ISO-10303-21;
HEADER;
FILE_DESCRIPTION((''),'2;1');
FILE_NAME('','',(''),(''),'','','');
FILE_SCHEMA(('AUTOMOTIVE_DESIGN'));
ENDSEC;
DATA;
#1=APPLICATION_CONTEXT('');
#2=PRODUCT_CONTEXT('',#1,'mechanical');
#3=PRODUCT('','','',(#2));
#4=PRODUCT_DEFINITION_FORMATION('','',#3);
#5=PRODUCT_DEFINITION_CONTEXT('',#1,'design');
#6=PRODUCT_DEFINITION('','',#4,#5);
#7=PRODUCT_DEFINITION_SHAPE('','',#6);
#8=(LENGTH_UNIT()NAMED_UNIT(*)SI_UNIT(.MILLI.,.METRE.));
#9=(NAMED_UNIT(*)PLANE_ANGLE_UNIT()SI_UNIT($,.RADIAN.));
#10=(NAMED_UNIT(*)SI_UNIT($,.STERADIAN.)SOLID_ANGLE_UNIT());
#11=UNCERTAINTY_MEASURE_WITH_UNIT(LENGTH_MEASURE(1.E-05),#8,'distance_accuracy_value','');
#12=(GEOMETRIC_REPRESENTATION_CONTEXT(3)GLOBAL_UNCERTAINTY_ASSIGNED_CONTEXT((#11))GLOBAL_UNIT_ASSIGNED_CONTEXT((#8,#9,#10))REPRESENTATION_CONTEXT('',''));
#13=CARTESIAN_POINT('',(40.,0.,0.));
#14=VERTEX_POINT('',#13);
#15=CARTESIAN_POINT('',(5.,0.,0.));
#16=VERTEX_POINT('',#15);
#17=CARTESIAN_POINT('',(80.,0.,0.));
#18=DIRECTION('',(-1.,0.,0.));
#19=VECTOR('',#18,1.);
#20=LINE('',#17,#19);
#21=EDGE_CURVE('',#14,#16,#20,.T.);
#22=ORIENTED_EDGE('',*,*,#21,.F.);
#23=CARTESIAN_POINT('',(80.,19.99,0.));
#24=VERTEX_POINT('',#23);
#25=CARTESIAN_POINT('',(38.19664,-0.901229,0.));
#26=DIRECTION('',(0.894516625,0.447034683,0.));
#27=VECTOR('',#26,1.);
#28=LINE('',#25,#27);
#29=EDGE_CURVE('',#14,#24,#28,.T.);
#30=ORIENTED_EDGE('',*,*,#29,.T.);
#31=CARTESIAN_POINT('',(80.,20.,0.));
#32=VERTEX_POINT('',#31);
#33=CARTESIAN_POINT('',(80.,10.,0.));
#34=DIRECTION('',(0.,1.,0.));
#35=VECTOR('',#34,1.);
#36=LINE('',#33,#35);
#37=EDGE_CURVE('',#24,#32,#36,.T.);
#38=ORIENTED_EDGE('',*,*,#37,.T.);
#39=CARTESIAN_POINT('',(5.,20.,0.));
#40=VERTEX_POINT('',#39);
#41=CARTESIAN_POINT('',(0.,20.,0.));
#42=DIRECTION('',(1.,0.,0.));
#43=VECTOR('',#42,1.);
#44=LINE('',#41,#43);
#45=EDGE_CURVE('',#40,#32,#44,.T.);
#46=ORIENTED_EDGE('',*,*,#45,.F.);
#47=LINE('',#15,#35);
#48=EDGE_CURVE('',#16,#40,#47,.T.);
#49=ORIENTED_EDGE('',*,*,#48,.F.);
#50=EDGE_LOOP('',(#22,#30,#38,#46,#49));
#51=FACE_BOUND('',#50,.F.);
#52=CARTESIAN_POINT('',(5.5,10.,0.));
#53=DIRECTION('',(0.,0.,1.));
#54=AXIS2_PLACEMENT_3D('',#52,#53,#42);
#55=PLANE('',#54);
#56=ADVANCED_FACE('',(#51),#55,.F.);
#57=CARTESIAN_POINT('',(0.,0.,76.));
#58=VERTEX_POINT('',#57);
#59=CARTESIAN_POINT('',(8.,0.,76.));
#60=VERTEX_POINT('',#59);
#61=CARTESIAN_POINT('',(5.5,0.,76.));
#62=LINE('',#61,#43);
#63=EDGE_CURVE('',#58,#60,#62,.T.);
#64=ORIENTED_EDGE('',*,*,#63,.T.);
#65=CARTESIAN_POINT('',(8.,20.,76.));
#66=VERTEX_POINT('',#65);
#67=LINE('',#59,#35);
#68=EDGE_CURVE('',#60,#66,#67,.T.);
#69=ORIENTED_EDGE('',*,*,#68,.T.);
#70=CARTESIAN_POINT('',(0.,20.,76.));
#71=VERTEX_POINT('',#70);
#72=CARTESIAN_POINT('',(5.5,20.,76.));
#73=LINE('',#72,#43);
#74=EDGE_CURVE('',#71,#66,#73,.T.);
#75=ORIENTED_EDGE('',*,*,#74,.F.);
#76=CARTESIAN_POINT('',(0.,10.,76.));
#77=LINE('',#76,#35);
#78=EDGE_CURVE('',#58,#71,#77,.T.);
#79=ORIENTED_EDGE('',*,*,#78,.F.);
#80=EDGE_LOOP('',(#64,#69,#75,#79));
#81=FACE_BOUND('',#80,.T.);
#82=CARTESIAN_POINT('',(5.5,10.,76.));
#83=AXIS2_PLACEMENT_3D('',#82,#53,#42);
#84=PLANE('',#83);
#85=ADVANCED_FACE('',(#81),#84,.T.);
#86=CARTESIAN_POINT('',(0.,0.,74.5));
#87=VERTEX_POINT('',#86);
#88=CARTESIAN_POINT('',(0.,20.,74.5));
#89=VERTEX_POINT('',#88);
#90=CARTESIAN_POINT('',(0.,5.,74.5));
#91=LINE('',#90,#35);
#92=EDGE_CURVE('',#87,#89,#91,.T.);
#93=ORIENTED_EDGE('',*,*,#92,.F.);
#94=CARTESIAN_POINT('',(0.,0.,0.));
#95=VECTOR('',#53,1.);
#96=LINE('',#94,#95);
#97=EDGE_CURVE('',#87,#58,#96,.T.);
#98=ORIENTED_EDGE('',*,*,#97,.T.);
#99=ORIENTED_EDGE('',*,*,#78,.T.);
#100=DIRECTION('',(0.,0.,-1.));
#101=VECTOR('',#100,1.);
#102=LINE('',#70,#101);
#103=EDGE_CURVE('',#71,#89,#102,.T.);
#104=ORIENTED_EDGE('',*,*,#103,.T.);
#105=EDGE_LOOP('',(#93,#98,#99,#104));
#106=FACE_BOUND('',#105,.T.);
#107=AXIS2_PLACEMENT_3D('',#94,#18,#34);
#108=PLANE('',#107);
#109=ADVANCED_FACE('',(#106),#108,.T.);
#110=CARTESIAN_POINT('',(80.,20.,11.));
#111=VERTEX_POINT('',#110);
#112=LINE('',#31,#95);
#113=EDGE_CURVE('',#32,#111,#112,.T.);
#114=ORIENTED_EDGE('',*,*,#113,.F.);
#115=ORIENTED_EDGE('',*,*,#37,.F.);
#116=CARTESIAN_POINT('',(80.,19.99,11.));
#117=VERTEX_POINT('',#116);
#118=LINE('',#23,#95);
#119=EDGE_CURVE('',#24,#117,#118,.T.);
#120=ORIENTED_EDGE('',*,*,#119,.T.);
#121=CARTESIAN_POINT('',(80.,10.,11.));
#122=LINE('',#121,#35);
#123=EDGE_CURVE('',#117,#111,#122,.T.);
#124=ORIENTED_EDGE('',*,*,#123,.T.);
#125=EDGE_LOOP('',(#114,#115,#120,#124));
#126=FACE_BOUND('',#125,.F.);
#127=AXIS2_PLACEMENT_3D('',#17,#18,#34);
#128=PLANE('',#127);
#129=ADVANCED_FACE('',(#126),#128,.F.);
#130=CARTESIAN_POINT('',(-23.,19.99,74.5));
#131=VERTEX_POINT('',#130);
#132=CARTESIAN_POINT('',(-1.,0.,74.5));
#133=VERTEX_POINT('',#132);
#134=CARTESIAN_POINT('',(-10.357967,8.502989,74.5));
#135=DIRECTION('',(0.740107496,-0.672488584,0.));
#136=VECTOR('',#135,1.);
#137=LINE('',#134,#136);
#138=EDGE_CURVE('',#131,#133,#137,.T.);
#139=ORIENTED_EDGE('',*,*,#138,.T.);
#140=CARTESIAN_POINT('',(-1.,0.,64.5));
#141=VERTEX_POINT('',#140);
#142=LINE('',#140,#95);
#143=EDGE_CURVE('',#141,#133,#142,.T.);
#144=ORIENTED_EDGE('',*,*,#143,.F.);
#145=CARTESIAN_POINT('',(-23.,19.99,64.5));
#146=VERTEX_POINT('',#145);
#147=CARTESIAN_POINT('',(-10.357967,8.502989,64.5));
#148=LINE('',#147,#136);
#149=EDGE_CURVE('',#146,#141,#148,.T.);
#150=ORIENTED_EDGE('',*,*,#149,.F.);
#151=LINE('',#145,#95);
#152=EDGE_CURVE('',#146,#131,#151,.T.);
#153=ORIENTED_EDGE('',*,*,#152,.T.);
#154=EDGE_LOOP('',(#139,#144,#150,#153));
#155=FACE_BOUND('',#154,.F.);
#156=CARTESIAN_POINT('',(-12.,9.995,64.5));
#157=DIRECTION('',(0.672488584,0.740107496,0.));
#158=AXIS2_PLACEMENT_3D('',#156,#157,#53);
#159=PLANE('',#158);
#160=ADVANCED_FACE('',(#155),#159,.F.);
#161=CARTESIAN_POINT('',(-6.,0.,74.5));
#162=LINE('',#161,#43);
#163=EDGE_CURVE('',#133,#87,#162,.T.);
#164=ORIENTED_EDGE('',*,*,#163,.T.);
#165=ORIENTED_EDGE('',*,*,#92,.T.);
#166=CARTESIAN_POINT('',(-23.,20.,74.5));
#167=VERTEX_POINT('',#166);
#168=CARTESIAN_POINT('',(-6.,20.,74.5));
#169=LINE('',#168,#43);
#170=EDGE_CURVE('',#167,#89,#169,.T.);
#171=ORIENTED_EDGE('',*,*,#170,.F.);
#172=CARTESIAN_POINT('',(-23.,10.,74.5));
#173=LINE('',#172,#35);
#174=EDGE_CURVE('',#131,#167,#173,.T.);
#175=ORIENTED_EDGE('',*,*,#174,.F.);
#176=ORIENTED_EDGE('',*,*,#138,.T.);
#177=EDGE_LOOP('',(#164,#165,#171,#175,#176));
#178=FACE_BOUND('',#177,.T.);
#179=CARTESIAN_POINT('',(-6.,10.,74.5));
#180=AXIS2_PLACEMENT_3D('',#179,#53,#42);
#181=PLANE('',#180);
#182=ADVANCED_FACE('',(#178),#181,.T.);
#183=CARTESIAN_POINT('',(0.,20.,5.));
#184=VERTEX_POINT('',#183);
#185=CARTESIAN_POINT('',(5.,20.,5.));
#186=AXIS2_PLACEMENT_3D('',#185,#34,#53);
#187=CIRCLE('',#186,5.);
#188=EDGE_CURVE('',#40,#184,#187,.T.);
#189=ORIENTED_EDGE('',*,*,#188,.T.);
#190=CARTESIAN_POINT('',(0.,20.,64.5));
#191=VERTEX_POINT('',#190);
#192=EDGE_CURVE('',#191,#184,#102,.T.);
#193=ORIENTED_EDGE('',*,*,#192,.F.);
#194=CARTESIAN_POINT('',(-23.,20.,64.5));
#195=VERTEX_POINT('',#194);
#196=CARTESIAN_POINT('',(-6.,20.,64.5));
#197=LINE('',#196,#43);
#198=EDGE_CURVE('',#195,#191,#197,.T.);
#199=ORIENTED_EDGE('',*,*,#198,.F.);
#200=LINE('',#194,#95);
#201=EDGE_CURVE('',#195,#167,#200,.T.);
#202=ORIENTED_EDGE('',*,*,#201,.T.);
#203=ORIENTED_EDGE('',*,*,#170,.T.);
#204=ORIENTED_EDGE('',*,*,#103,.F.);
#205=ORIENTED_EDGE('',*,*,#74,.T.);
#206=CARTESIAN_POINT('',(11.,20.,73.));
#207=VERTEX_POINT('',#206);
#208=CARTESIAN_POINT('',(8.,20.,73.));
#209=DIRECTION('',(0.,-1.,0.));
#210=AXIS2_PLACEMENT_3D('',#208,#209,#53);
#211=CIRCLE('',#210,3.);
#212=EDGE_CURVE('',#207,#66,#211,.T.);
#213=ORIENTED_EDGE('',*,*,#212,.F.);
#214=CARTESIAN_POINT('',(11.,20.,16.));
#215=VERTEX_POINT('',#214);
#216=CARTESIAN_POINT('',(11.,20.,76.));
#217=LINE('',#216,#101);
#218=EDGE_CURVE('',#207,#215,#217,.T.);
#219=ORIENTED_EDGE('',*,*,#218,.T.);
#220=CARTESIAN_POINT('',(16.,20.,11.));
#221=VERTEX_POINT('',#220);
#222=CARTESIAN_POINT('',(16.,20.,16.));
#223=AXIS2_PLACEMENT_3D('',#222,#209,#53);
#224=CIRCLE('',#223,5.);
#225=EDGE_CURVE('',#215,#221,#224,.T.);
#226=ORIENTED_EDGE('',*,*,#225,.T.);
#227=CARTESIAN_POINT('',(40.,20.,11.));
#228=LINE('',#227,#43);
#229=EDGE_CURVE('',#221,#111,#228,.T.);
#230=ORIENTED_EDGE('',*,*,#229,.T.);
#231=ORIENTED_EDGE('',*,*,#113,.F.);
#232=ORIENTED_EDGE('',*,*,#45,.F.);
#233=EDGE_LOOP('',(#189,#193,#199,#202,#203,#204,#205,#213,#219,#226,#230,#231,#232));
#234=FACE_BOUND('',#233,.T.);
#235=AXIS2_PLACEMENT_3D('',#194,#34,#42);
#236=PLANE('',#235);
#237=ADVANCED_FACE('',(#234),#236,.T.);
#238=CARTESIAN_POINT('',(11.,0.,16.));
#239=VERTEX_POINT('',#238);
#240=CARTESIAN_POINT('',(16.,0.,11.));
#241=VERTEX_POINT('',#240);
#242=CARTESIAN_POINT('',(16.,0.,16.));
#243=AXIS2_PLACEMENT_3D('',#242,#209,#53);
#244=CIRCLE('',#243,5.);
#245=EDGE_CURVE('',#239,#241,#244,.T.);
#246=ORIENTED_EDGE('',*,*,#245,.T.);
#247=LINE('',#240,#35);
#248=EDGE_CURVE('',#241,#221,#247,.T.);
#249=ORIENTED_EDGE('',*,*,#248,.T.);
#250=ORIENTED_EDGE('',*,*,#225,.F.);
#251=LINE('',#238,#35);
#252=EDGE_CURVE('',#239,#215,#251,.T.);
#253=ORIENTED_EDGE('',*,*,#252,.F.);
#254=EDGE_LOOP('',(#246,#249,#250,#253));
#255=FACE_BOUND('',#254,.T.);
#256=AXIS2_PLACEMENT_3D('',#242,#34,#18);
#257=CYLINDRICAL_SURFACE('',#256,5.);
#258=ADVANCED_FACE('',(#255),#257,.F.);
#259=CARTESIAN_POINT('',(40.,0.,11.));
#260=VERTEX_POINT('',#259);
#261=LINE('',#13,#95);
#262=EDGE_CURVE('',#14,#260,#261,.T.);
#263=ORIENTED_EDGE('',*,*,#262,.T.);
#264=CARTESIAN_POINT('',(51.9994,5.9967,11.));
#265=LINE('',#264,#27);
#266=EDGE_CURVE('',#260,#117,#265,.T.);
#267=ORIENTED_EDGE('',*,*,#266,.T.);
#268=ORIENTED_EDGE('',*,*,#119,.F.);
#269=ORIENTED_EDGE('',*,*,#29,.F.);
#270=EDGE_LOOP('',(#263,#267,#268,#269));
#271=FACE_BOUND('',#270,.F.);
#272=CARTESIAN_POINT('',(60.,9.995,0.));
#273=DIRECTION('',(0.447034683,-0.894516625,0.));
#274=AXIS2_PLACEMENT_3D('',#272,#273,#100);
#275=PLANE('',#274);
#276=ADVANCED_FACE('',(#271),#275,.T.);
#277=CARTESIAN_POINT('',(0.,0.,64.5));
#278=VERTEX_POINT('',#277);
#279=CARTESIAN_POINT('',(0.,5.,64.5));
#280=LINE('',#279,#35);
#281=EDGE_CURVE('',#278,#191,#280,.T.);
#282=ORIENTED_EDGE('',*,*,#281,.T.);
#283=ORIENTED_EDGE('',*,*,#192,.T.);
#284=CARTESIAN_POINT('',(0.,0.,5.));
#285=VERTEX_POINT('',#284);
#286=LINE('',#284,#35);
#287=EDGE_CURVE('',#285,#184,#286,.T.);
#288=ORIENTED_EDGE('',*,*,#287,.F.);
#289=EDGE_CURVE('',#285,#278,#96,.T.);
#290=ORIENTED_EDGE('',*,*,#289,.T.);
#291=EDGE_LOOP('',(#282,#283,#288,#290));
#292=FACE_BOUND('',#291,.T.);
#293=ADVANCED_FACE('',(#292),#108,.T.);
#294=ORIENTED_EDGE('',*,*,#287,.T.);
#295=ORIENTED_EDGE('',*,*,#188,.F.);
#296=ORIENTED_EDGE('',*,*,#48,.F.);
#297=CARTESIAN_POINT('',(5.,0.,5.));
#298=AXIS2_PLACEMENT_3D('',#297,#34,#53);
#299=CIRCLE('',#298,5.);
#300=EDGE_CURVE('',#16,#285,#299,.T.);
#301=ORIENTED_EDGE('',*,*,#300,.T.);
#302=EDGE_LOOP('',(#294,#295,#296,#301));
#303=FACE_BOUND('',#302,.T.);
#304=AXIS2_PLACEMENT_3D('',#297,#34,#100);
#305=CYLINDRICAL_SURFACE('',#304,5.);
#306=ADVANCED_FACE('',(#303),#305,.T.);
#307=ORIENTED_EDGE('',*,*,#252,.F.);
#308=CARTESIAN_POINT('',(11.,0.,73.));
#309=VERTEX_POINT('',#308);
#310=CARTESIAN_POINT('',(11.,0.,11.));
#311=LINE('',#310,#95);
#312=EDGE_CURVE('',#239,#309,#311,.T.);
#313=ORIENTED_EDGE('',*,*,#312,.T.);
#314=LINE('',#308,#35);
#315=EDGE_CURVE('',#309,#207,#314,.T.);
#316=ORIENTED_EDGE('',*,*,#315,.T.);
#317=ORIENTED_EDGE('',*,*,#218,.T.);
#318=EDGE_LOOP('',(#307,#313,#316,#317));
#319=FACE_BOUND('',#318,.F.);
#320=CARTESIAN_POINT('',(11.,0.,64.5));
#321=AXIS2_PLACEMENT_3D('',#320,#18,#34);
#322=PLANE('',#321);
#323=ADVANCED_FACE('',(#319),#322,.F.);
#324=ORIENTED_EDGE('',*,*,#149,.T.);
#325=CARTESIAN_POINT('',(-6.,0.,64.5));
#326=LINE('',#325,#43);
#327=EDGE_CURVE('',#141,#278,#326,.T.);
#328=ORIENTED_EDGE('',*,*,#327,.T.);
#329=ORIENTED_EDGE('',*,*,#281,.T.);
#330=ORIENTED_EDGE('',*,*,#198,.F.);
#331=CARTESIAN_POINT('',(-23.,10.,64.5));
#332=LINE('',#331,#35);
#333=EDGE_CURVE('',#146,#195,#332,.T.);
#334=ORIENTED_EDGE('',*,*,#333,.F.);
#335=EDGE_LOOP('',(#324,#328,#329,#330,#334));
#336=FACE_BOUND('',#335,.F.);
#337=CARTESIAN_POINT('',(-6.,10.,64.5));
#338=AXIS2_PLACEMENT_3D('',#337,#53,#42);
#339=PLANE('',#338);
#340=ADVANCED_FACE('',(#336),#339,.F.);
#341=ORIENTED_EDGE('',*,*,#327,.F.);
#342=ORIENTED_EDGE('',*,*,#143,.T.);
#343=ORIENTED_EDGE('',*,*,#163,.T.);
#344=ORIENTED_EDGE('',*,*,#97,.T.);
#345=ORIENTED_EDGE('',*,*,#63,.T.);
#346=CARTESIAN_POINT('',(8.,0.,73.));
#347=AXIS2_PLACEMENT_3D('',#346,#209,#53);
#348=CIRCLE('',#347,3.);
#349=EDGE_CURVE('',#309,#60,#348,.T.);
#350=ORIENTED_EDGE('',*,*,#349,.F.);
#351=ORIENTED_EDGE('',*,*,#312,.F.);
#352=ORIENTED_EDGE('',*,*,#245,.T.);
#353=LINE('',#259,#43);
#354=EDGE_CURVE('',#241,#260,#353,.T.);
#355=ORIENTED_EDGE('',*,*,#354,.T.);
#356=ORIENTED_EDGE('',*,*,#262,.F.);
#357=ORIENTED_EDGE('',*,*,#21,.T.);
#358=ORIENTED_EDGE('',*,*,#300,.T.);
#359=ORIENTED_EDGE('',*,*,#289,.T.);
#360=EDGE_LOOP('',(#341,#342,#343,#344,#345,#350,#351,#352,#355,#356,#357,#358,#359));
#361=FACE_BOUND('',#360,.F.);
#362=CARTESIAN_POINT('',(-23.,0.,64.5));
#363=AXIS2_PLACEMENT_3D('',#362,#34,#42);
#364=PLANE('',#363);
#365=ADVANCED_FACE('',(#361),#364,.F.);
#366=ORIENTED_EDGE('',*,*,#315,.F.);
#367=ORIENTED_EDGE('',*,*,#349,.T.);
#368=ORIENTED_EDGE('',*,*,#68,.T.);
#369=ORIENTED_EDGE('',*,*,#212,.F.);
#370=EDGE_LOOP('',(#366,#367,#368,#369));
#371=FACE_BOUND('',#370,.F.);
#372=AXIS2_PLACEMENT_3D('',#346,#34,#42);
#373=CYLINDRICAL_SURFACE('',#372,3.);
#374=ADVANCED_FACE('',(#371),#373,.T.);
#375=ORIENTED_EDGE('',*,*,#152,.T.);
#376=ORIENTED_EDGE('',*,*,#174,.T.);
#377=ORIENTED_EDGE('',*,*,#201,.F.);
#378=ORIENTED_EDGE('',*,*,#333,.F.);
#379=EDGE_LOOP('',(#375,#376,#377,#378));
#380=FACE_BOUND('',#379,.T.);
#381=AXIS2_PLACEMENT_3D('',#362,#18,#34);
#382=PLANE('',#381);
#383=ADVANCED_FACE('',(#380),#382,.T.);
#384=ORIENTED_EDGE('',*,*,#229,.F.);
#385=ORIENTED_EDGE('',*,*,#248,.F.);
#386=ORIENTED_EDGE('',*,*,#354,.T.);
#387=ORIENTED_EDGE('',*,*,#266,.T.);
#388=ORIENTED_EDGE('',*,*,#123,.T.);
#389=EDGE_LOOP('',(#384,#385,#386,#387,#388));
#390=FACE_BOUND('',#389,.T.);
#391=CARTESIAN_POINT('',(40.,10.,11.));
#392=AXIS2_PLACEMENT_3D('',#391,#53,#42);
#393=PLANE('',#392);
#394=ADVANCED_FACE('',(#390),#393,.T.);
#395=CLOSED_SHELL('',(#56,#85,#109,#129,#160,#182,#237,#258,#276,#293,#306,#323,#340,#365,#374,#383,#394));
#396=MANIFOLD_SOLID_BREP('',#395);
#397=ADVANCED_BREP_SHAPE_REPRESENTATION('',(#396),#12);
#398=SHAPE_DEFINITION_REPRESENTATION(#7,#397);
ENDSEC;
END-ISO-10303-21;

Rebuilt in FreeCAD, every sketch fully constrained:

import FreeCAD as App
import Part
import Sketcher
Q = App.Units.Quantity


def edges_at(feature, points):
    """Names of the edges that pass closest to the given points."""
    edges = feature.Shape.Edges
    near = lambda p: min(range(len(edges)), key=lambda i: edges[i].distToShape(Part.Vertex(*p))[0])
    return sorted({f"Edge{near(p) + 1}" for p in points})

doc = App.newDocument("Part")
body = doc.addObject("PartDesign::Body", "Body")

# Sketch on XY plane
sketch1 = body.newObject("Sketcher::SketchObject", "Sketch")
sketch1.AttachmentSupport = (doc.getObject("XY_Plane"), [""])
sketch1.MapMode = "FlatFace"
sketch1.addGeometry(Part.LineSegment(App.Vector(0, 20, 0), App.Vector(0, 0, 0)), False)
sketch1.addGeometry(Part.LineSegment(App.Vector(0, 0, 0), App.Vector(80, 0, 0)), False)
sketch1.addGeometry(Part.LineSegment(App.Vector(80, 0, 0), App.Vector(80, 20, 0)), False)
sketch1.addGeometry(Part.LineSegment(App.Vector(80, 20, 0), App.Vector(0, 20, 0)), False)
sketch1.addConstraint(Sketcher.Constraint("Coincident", 0, 2, 1, 1))
sketch1.addConstraint(Sketcher.Constraint("Coincident", 1, 2, 2, 1))
sketch1.addConstraint(Sketcher.Constraint("Coincident", 2, 2, 3, 1))
sketch1.addConstraint(Sketcher.Constraint("Coincident", 3, 2, 0, 1))
sketch1.addConstraint(Sketcher.Constraint("Vertical", 0))
sketch1.addConstraint(Sketcher.Constraint("Horizontal", 1))
sketch1.addConstraint(Sketcher.Constraint("Vertical", 2))
sketch1.addConstraint(Sketcher.Constraint("Horizontal", 3))
sketch1.addConstraint(Sketcher.Constraint("Coincident", 0, 2, -1, 1))
sketch1.addConstraint(Sketcher.Constraint("DistanceX", 1, 1, 1, 2, Q("80 mm")))
sketch1.addConstraint(Sketcher.Constraint("DistanceY", 0, 2, 0, 1, Q("20 mm")))
pad1 = body.newObject("PartDesign::Pad", "Pad")
pad1.Profile = sketch1
pad1.Length = 11
body2 = doc.addObject("PartDesign::Body", "Body001")

# Sketch on XY plane
sketch2 = body2.newObject("Sketcher::SketchObject", "Sketch001")
sketch2.AttachmentSupport = (doc.getObject("XY_Plane001"), [""])
sketch2.MapMode = "FlatFace"
sketch2.AttachmentOffset = App.Placement(App.Vector(0, 0, 64.5), App.Rotation())
sketch2.addGeometry(Part.LineSegment(App.Vector(-23, 20, 0), App.Vector(-23, 0, 0)), False)
sketch2.addGeometry(Part.LineSegment(App.Vector(-23, 0, 0), App.Vector(11, 0, 0)), False)
sketch2.addGeometry(Part.LineSegment(App.Vector(11, 0, 0), App.Vector(11, 20, 0)), False)
sketch2.addGeometry(Part.LineSegment(App.Vector(11, 20, 0), App.Vector(-23, 20, 0)), False)
sketch2.addConstraint(Sketcher.Constraint("Coincident", 0, 2, 1, 1))
sketch2.addConstraint(Sketcher.Constraint("Coincident", 1, 2, 2, 1))
sketch2.addConstraint(Sketcher.Constraint("Coincident", 2, 2, 3, 1))
sketch2.addConstraint(Sketcher.Constraint("Coincident", 3, 2, 0, 1))
sketch2.addConstraint(Sketcher.Constraint("Vertical", 0))
sketch2.addConstraint(Sketcher.Constraint("Horizontal", 1))
sketch2.addConstraint(Sketcher.Constraint("Vertical", 2))
sketch2.addConstraint(Sketcher.Constraint("Horizontal", 3))
sketch2.addConstraint(Sketcher.Constraint("PointOnObject", 0, 2, -1))
sketch2.addConstraint(Sketcher.Constraint("DistanceX", 1, 1, 1, 2, Q("34 mm")))
sketch2.addConstraint(Sketcher.Constraint("DistanceY", 0, 2, 0, 1, Q("20 mm")))
sketch2.addConstraint(Sketcher.Constraint("DistanceX", 0, 2, -1, 1, Q("23 mm")))
pad2 = body2.newObject("PartDesign::Pad", "Pad001")
pad2.Profile = sketch2
pad2.Length = 10
body3 = doc.addObject("PartDesign::Body", "Body002")

# Sketch on XY plane
sketch3 = body3.newObject("Sketcher::SketchObject", "Sketch002")
sketch3.AttachmentSupport = (doc.getObject("XY_Plane002"), [""])
sketch3.MapMode = "FlatFace"
sketch3.addGeometry(Part.LineSegment(App.Vector(0, 20, 0), App.Vector(0, 0, 0)), False)
sketch3.addGeometry(Part.LineSegment(App.Vector(0, 0, 0), App.Vector(11, 0, 0)), False)
sketch3.addGeometry(Part.LineSegment(App.Vector(11, 0, 0), App.Vector(11, 20, 0)), False)
sketch3.addGeometry(Part.LineSegment(App.Vector(11, 20, 0), App.Vector(0, 20, 0)), False)
sketch3.addConstraint(Sketcher.Constraint("Coincident", 0, 2, 1, 1))
sketch3.addConstraint(Sketcher.Constraint("Coincident", 1, 2, 2, 1))
sketch3.addConstraint(Sketcher.Constraint("Coincident", 2, 2, 3, 1))
sketch3.addConstraint(Sketcher.Constraint("Coincident", 3, 2, 0, 1))
sketch3.addConstraint(Sketcher.Constraint("Vertical", 0))
sketch3.addConstraint(Sketcher.Constraint("Horizontal", 1))
sketch3.addConstraint(Sketcher.Constraint("Vertical", 2))
sketch3.addConstraint(Sketcher.Constraint("Horizontal", 3))
sketch3.addConstraint(Sketcher.Constraint("Coincident", 0, 2, -1, 1))
sketch3.addConstraint(Sketcher.Constraint("DistanceX", 1, 1, 1, 2, Q("11 mm")))
sketch3.addConstraint(Sketcher.Constraint("DistanceY", 0, 2, 0, 1, Q("20 mm")))
pad3 = body3.newObject("PartDesign::Pad", "Pad002")
pad3.Profile = sketch3
pad3.Length = 76
doc.recompute()

boolean = body3.newObject("PartDesign::Boolean", "Boolean")
boolean.Type = "Fuse"
boolean.addObjects([body])
doc.recompute()

boolean2 = body3.newObject("PartDesign::Boolean", "Boolean001")
boolean2.Type = "Fuse"
boolean2.addObjects([body2])
doc.recompute()

fillet = body3.newObject("PartDesign::Fillet", "Fillet")
fillet.Base = (boolean2, edges_at(boolean2, [(11, 10, 11), (0, 10, 0)]))
fillet.Radius = 5
doc.recompute()

fillet2 = body3.newObject("PartDesign::Fillet", "Fillet001")
fillet2.Base = (fillet, edges_at(fillet, [(11, 10, 76)]))
fillet2.Radius = 3
doc.recompute()

chamfer = body3.newObject("PartDesign::Chamfer", "Chamfer")
chamfer.Base = (fillet2, edges_at(fillet2, [(-23, 0, 69.5)]))
chamfer.ChamferType = "Two distances"
chamfer.Size = 19.99
chamfer.Size2 = 22
doc.recompute()

chamfer2 = body3.newObject("PartDesign::Chamfer", "Chamfer001")
chamfer2.Base = (chamfer, edges_at(chamfer, [(80, 0, 5.5)]))
chamfer2.ChamferType = "Two distances"
chamfer2.Size = 40
chamfer2.Size2 = 19.99

doc.recompute()
